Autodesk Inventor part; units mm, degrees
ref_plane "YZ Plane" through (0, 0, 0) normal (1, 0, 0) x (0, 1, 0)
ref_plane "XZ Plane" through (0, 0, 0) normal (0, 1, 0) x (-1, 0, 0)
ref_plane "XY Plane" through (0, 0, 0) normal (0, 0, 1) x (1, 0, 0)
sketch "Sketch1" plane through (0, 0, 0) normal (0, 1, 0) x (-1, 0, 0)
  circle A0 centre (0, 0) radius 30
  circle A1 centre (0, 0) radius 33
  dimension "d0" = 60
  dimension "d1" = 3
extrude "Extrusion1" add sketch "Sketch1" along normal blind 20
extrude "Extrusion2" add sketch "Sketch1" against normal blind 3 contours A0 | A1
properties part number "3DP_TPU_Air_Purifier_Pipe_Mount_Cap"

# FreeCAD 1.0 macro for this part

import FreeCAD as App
import Part
import Sketcher

V = App.Vector

doc = App.newDocument("Part")
params = doc.addObject("Spreadsheet::Sheet", "Params")
for row, (alias, value) in enumerate([
    ("sketch1_diameter", "60 mm"),
    ("sketch1_diameter2", "66 mm"),
    ("pad1_length", "20 mm"),
    ("sketch2_diameter", "66 mm"),
    ("pad2_length", "3 mm"),
], start=1):
    params.set(f"A{row}", alias)
    params.set(f"B{row}", "=" + value)
    params.setAlias(f"B{row}", alias)

body = doc.addObject("PartDesign::Body", "Body")

sketch1 = body.newObject("Sketcher::SketchObject", "Sketch")
sketch1.AttachmentSupport = (doc.getObject("XZ_Plane"), [""])
sketch1.MapMode = "FlatFace"
sketch1.addGeometry([
    Part.Circle(V(0, 0, 0), V(0, 0, 1), 33),
    Part.Circle(V(0, 0, 0), V(0, 0, 1), 30),
], False)
sketch1.addConstraint([
    Sketcher.Constraint("Coincident", 0, 3, -1, 1),
    Sketcher.Constraint("Coincident", 1, 3, -1, 1),
    Sketcher.Constraint("Diameter", 1, 60.0),
    Sketcher.Constraint("Diameter", 0, 66.0),
])
sketch1.setExpression("Constraints[2]", "Params.sketch1_diameter")
sketch1.setExpression("Constraints[3]", "Params.sketch1_diameter2")
pad1 = body.newObject("PartDesign::Pad", "Pad")
pad1.Profile = sketch1
pad1.setExpression("Length", "Params.pad1_length")
pad1.Reversed = True

sketch2 = body.newObject("Sketcher::SketchObject", "Sketch001")
sketch2.AttachmentSupport = (doc.getObject("XZ_Plane"), [""])
sketch2.MapMode = "FlatFace"
sketch2.addGeometry(Part.Circle(V(0, 0, 0), V(0, 0, 1), 33), False)
sketch2.addConstraint([
    Sketcher.Constraint("Coincident", 0, 3, -1, 1),
    Sketcher.Constraint("Diameter", 0, 66.0),
])
sketch2.setExpression("Constraints[1]", "Params.sketch2_diameter")
pad2 = body.newObject("PartDesign::Pad", "Pad001")
pad2.Profile = sketch2
pad2.setExpression("Length", "Params.pad2_length")

doc.recompute()
